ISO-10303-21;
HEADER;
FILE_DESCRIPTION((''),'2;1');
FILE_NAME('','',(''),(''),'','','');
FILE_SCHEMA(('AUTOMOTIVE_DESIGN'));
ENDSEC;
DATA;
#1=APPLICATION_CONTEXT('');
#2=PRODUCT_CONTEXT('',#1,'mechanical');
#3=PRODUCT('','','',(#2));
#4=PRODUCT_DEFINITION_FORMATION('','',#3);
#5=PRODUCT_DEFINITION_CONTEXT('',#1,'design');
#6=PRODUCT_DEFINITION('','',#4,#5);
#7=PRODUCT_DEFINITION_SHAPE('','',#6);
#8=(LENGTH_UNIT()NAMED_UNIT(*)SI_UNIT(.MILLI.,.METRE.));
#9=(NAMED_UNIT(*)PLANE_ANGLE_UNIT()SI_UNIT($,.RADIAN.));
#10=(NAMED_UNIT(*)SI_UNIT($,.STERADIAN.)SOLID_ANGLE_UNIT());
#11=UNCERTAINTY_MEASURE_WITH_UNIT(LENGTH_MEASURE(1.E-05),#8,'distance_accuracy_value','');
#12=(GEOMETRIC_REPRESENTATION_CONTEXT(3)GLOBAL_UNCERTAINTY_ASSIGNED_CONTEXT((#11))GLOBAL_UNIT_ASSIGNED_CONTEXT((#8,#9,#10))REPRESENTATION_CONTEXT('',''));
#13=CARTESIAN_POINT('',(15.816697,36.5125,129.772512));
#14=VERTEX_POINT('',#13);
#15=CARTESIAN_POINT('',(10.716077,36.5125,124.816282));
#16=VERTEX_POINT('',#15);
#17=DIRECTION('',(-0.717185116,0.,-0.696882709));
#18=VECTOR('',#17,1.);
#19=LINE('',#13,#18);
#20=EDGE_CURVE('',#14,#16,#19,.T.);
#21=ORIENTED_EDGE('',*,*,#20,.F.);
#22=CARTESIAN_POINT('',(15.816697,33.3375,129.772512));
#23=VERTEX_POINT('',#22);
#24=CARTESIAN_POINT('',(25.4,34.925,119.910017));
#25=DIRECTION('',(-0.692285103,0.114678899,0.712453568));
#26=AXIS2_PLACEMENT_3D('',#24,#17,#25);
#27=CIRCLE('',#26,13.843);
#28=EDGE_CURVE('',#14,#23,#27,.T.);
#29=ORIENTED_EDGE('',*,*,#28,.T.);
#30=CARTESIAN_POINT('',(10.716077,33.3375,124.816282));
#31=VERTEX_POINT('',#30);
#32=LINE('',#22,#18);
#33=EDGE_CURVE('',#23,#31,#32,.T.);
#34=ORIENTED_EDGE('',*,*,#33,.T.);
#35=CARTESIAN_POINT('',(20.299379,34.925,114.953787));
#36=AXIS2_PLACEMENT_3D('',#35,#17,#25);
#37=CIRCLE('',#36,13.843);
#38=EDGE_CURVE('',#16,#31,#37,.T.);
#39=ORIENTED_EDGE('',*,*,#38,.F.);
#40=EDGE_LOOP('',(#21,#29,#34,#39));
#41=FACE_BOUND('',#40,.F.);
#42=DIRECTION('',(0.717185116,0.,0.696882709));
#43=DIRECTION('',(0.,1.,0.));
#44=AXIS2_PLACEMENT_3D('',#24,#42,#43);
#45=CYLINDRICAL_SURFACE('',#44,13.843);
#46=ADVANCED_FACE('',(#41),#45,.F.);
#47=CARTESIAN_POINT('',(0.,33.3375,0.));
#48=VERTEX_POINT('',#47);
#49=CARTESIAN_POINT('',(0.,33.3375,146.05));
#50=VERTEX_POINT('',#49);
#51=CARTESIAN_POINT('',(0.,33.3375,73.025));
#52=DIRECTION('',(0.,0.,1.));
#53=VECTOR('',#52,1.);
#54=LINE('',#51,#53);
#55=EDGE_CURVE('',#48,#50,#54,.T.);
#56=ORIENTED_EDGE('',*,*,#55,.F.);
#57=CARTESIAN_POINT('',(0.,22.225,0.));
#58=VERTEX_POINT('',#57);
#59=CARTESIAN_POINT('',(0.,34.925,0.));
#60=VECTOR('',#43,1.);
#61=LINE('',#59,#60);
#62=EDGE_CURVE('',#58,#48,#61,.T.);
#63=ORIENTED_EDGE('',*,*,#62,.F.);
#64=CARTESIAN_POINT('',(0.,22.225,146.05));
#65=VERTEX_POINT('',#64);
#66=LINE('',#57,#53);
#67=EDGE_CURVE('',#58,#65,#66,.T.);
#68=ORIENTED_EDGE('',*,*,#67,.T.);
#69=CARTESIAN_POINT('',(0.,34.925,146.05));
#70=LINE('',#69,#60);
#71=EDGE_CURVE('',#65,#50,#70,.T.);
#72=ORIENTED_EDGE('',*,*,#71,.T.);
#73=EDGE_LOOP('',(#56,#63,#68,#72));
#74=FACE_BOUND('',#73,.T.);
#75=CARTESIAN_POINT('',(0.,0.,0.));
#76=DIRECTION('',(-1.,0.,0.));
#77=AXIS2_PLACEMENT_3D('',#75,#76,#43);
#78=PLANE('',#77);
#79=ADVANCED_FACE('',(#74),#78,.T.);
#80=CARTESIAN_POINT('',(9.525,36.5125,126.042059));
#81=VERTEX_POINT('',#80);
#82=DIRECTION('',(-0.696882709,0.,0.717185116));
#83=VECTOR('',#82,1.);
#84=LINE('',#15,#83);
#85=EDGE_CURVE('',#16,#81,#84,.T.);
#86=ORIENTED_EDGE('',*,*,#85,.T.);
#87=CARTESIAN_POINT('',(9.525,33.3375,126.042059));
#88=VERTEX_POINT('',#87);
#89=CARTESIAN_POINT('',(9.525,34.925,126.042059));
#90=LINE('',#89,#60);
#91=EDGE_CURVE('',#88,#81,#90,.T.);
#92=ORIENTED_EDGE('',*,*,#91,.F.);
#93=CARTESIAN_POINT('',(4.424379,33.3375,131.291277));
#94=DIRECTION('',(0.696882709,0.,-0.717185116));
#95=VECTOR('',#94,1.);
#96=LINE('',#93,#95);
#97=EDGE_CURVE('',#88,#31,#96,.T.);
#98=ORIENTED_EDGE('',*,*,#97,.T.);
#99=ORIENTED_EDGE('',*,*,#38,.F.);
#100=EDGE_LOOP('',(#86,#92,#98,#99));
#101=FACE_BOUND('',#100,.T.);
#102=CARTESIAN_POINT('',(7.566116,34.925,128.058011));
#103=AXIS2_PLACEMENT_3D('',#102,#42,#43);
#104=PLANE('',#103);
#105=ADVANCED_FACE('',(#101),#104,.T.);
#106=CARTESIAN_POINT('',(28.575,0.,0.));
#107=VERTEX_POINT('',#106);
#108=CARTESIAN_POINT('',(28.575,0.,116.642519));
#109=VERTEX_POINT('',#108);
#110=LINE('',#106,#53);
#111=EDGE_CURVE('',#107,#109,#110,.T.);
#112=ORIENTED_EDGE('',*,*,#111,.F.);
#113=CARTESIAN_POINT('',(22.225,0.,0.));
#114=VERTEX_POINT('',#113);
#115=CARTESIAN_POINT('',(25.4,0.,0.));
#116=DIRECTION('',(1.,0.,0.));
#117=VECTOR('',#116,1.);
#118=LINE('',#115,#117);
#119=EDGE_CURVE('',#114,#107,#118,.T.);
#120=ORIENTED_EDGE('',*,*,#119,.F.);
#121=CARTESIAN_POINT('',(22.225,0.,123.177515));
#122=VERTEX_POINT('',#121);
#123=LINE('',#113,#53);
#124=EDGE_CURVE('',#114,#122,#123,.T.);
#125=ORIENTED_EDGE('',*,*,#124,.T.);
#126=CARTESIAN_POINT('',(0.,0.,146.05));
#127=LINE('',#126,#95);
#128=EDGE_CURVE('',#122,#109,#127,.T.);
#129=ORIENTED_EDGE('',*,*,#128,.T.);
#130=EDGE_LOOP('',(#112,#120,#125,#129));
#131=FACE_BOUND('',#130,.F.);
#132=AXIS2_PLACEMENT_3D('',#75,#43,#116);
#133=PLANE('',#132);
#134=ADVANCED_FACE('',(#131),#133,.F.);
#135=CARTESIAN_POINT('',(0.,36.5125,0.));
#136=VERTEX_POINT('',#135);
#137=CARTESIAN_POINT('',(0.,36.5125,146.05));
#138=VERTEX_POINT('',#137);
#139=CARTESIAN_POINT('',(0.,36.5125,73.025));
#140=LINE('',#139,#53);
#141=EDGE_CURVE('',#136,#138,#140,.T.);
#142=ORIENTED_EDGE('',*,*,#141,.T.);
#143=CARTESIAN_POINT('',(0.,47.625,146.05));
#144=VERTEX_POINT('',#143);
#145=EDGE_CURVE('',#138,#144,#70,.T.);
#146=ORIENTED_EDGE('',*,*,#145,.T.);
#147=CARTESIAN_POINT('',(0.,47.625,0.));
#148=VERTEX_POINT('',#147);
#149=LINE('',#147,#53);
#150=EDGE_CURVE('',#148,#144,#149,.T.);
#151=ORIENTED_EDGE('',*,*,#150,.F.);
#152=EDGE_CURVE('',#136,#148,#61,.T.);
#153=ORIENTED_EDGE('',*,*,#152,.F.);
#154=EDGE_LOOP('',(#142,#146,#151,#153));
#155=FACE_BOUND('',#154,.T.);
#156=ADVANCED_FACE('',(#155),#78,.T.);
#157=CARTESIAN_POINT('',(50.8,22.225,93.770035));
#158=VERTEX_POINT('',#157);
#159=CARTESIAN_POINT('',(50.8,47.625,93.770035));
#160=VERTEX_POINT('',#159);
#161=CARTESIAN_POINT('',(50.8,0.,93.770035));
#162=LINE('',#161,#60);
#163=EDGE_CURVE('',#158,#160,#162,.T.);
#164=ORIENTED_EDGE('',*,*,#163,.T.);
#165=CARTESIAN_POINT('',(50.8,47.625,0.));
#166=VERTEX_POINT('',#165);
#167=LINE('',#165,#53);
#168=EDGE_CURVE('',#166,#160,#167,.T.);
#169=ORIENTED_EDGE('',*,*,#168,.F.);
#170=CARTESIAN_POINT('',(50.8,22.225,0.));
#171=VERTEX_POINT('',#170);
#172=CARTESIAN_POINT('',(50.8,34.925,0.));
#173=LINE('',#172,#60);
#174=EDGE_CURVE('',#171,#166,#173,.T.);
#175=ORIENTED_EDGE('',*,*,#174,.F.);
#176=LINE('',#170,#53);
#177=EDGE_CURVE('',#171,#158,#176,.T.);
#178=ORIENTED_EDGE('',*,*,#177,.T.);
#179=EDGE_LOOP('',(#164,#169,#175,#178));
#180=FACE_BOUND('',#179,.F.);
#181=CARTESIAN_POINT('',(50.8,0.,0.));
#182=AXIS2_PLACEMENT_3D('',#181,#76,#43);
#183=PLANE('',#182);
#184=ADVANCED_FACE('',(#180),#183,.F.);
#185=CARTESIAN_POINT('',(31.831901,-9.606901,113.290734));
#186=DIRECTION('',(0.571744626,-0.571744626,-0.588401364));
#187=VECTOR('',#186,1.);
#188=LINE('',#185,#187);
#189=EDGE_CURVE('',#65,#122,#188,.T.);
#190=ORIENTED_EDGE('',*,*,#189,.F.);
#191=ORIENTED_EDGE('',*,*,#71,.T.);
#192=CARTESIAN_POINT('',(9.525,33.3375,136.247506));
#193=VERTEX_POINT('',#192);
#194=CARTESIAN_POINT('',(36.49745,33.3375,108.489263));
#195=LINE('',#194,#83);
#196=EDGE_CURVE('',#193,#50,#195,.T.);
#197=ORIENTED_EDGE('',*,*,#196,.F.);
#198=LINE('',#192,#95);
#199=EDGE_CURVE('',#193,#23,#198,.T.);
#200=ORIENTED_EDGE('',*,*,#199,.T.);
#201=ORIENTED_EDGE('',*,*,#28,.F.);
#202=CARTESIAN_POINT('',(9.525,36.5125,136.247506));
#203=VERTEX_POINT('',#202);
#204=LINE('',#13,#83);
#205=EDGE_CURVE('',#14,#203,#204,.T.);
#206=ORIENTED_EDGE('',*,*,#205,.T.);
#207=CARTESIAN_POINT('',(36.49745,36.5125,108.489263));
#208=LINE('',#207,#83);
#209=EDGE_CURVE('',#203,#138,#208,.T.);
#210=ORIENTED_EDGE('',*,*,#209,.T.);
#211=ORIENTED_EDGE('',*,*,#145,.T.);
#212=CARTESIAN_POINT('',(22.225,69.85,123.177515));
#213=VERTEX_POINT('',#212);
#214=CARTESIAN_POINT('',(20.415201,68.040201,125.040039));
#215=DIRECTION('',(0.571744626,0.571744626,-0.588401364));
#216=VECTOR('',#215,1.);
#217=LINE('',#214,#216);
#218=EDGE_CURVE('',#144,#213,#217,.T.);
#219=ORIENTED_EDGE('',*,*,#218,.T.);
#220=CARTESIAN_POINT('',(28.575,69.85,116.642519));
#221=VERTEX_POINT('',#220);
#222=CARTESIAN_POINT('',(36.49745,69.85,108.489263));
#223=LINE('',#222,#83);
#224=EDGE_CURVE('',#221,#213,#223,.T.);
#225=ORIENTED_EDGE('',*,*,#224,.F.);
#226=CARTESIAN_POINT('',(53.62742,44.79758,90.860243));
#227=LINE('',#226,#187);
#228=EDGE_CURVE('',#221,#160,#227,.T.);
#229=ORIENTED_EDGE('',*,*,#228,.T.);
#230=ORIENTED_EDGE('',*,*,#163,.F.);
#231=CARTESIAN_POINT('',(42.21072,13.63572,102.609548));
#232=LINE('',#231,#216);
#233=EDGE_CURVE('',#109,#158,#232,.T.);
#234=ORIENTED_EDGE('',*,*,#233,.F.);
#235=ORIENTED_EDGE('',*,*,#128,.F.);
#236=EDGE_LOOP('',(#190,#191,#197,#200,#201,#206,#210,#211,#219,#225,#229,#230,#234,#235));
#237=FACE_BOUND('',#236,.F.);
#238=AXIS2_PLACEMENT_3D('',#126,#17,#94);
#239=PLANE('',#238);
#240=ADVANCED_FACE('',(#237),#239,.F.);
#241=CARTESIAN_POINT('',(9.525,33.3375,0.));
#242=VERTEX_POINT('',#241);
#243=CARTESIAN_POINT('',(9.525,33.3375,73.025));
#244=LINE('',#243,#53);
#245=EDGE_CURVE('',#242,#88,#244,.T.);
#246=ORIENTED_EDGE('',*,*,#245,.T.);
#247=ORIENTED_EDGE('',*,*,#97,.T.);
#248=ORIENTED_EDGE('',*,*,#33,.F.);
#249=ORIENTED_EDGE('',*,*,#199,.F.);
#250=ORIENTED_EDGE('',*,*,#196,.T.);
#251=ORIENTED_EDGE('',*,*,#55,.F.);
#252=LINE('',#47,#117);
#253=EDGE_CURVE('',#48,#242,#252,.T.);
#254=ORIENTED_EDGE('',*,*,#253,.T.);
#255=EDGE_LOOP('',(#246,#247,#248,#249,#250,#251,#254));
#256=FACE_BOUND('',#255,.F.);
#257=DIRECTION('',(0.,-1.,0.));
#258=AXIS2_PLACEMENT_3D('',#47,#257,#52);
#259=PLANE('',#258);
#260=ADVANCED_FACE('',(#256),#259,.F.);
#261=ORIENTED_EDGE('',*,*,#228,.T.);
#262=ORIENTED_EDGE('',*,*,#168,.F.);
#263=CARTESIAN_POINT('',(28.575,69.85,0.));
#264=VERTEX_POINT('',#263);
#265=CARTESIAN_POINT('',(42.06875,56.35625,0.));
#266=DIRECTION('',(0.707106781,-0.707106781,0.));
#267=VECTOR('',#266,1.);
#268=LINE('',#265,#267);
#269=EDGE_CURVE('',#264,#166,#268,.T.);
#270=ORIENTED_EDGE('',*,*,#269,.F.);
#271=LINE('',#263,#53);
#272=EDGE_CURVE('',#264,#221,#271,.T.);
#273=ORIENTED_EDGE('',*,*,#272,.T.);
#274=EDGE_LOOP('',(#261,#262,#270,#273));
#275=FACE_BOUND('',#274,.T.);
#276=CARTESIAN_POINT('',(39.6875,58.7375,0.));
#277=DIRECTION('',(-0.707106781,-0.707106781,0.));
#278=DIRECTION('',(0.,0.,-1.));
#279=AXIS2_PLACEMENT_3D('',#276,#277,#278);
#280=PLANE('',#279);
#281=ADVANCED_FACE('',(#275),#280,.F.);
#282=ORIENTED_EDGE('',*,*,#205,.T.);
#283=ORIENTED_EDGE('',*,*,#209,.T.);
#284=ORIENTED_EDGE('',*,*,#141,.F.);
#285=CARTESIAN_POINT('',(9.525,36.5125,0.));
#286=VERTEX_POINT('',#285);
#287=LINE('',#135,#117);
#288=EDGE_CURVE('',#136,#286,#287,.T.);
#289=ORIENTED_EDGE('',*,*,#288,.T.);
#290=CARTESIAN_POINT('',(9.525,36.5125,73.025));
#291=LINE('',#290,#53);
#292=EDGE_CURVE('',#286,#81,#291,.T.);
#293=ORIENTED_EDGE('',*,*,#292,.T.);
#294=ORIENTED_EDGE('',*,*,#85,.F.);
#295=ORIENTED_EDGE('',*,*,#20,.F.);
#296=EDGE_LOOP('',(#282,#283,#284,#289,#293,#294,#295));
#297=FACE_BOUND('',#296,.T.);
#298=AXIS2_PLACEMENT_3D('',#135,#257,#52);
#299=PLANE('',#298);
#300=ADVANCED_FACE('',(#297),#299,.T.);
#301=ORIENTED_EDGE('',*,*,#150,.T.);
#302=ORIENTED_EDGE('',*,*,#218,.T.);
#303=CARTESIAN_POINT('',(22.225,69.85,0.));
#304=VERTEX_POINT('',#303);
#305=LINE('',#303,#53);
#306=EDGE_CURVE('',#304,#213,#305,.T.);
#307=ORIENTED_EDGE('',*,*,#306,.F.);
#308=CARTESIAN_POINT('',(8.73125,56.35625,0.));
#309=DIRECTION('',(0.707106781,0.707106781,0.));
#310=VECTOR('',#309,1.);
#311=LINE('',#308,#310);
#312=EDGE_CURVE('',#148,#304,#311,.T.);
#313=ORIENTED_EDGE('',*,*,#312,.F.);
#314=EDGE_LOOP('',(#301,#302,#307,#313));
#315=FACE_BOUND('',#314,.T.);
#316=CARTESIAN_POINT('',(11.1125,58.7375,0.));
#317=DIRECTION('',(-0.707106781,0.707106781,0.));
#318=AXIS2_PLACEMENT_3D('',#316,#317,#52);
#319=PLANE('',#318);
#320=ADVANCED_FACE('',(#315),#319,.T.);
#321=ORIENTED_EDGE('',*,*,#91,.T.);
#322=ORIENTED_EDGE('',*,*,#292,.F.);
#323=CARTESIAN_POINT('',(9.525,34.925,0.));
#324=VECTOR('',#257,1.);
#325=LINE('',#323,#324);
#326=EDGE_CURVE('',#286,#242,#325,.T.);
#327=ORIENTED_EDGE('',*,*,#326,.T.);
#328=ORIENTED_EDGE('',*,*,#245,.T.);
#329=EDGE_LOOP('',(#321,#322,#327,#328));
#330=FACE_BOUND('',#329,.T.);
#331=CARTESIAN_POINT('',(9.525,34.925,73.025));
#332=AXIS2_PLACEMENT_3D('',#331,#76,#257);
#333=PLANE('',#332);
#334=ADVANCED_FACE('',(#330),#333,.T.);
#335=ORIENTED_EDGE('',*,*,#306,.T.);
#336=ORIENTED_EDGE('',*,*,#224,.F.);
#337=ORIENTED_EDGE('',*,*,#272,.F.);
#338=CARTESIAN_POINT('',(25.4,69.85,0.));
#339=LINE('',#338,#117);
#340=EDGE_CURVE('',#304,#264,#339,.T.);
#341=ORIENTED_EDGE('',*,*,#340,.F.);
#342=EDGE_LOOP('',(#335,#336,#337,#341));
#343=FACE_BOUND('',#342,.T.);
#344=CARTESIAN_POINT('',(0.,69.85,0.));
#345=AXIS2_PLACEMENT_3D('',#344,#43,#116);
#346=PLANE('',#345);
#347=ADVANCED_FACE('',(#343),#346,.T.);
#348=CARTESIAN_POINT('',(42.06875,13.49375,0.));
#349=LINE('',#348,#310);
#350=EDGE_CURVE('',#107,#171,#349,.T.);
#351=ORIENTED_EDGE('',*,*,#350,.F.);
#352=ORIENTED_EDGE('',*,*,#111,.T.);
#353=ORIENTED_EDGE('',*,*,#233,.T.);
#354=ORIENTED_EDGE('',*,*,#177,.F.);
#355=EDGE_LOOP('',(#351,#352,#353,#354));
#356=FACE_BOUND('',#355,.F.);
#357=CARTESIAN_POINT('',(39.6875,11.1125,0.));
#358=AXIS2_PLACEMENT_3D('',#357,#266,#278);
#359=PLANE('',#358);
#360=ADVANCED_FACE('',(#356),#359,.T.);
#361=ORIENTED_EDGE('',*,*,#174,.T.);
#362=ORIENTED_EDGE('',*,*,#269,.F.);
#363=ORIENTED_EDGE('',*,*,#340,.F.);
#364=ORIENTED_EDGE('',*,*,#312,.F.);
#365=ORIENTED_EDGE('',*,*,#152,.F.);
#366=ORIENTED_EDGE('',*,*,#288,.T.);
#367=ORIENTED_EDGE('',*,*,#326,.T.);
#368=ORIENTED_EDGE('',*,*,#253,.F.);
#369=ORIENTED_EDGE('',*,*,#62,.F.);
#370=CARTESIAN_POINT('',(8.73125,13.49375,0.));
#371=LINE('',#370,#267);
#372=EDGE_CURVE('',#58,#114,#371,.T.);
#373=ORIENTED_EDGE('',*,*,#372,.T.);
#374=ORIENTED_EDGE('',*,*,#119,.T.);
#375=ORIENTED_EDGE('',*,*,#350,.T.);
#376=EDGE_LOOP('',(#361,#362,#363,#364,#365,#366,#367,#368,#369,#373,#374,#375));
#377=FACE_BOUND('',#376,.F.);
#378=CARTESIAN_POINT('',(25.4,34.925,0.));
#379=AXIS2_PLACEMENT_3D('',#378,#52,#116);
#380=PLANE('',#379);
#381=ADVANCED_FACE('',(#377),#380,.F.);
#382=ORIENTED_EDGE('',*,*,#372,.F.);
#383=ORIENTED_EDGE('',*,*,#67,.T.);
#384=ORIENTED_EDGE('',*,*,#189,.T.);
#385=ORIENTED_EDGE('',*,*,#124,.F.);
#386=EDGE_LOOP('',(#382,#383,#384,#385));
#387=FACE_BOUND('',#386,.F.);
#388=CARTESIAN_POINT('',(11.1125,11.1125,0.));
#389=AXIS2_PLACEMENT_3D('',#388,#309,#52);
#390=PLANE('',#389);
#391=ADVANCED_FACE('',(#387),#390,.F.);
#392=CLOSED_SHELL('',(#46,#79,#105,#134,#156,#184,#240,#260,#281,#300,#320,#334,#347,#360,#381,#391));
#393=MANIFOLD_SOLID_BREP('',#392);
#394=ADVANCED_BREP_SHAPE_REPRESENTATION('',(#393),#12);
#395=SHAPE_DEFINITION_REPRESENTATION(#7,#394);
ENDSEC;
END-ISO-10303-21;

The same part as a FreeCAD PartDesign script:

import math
import FreeCAD as App
import Part
import Sketcher
from FreeCAD import Vector
Q = App.Units.Quantity


def edges_at(feature, points):
    """Names of the edges that pass closest to the given points."""
    edges = feature.Shape.Edges
    near = lambda p: min(range(len(edges)), key=lambda i: edges[i].distToShape(Part.Vertex(*p))[0])
    return sorted({f"Edge{near(p) + 1}" for p in points})


def add_polygon(sketch, points):
    """Adds a closed chain of lines whose ends are joined by coincident constraints."""
    first, n = sketch.GeometryCount, len(points)
    for a, b in zip(points, points[1:] + points[:1]):
        sketch.addGeometry(Part.LineSegment(App.Vector(*a, 0), App.Vector(*b, 0)), False)
    for i in range(n):
        sketch.addConstraint(Sketcher.Constraint("Coincident", first + i, 2, first + (i + 1) % n, 1))

doc = App.newDocument("Part")
body = doc.addObject("PartDesign::Body", "Body")

# Sketch on XY plane
sketch1 = body.newObject("Sketcher::SketchObject", "Sketch")
sketch1.AttachmentSupport = (doc.getObject("XY_Plane"), [""])
sketch1.MapMode = "FlatFace"
add_polygon(sketch1, [(0, 70), (0, 0), (51, 0), (51, 70)])  # lines 0-3
sketch1.addConstraint([
    Sketcher.Constraint("Vertical", 0),
    Sketcher.Constraint("Horizontal", 1),
    Sketcher.Constraint("Vertical", 2),
    Sketcher.Constraint("Horizontal", 3),
    Sketcher.Constraint("Coincident", 0, 2, -1, 1),
    Sketcher.Constraint("DistanceX", 1, 1, 1, 2, Q("2 in")),
    Sketcher.Constraint("DistanceY", 0, 2, 0, 1, Q("2.75 in")),
])
pad1 = body.newObject("PartDesign::Pad", "Pad")
pad1.Profile = sketch1
pad1.Length = Q("5.75 in")

# Sketch on XZ plane
sketch2 = body.newObject("Sketcher::SketchObject", "Sketch001")
sketch2.AttachmentSupport = (doc.getObject("XZ_Plane"), [""])
sketch2.MapMode = "FlatFace"
add_polygon(sketch2, [(51, 146), (0, 146), (51, 94)])  # lines 0-2
sketch2.addConstraint([
    Sketcher.Constraint("Horizontal", 0),
    Sketcher.Constraint("Vertical", 2),
    Sketcher.Constraint("PointOnObject", 0, 2, -2),
    Sketcher.Constraint("DistanceX", 0, 2, 0, 1, Q("2 in")),
    Sketcher.Constraint("DistanceY", -1, 1, 0, 2, Q("5.75 in")),
    Sketcher.Constraint("DistanceY", 2, 1, 2, 2, Q("52.279965 mm")),
])
pocket1 = body.newObject("PartDesign::Pocket", "Pocket")
pocket1.Profile = sketch2
pocket1.Type = "ThroughAll"

# Sketch on an angled plane
sketch3 = body.newObject("Sketcher::SketchObject", "Sketch002")
sketch3.Placement = App.Placement(Vector(72.9949, 0, 70.928527), App.Rotation(Vector(0, 1, 0), Vector(-0.696882709, 0, 0.717185116), Vector(0.717185116, 0, 0.696882709), "ZXY"))
sketch3.addGeometry(Part.Circle(Vector(35, 68, 0), Vector(0, 0, 1), 14), False)
sketch3.addConstraint([
    Sketcher.Constraint("Diameter", 0, Q("1.09 in")),
    Sketcher.Constraint("DistanceX", -1, 1, 0, 3, Q("1.375 in")),
    Sketcher.Constraint("DistanceY", -1, 1, 0, 3, Q("68.296859 mm")),
])
pocket2 = body.newObject("PartDesign::Pocket", "Pocket001")
pocket2.Profile = sketch3
pocket2.Length = Q("0.28 in")
doc.recompute()

chamfer = body.newObject("PartDesign::Chamfer", "Chamfer")
chamfer.Base = (pocket2, edges_at(pocket2, [
    (50.8, 0, 46.885),
    (50.8, 69.85, 46.885),
    (0, 69.85, 73.025),
    (0, 0, 73.025),
]))
chamfer.Size = Q("0.875 in")

# Sketch on YZ plane
sketch4 = body.newObject("Sketcher::SketchObject", "Sketch003")
sketch4.AttachmentSupport = (doc.getObject("YZ_Plane"), [""])
sketch4.MapMode = "FlatFace"
add_polygon(sketch4, [(36.5, 146.1), (36.5, 0), (33.3, 0), (33.3, 146.1)])  # lines 0-3
sketch4.addConstraint([
    Sketcher.Constraint("Vertical", 0),
    Sketcher.Constraint("Horizontal", 1),
    Sketcher.Constraint("Vertical", 2),
    Sketcher.Constraint("Horizontal", 3),
    Sketcher.Constraint("PointOnObject", 0, 2, -1),
    Sketcher.Constraint("DistanceY", 0, 2, 0, 1, Q("5.75 in")),
    Sketcher.Constraint("DistanceX", 1, 2, 1, 1, Q("0.125 in")),
    Sketcher.Constraint("DistanceX", -1, 1, 0, 2, Q("1.4375 in")),
])
pocket3 = body.newObject("PartDesign::Pocket", "Pocket002")
pocket3.Profile = sketch4
pocket3.Length = Q("0.375 in")
pocket3.Reversed = True

# Sketch on an angled plane
sketch5 = body.newObject("Sketcher::SketchObject", "Sketch004")
sketch5.Placement = App.Placement(Vector(72.9949, 0, 70.928527), App.Rotation(Vector(0, 1, 0), Vector(-0.696882709, 0, 0.717185116), Vector(0.717185116, 0, 0.696882709), "ZXY"))
sketch5.addGeometry([
    Part.LineSegment(Vector(36.5, 91.1, 0), Vector(33.3, 91.1, 0)),
    Part.LineSegment(Vector(33.3, 91.1, 0), Vector(33.3, 82, 0)),
    Part.ArcOfCircle(Part.Circle(Vector(34.9, 68.3, 0), Vector(0, 0, 1), 13.8), math.radians(83.41), math.radians(96.59)),
    Part.LineSegment(Vector(36.5, 82, 0), Vector(36.5, 91.1, 0)),
], False)
sketch5.addConstraint([
    Sketcher.Constraint("Coincident", 0, 2, 1, 1),
    Sketcher.Constraint("Coincident", 1, 2, 2, 2),
    Sketcher.Constraint("Coincident", 2, 1, 3, 1),
    Sketcher.Constraint("Coincident", 3, 2, 0, 1),
    Sketcher.Constraint("Horizontal", 0),
    Sketcher.Constraint("Vertical", 1),
    Sketcher.Constraint("Vertical", 3),
    Sketcher.Constraint("Horizontal", 1, 2, 2, 1),
    Sketcher.Constraint("Radius", 2, Q("0.545 in")),
    Sketcher.Constraint("DistanceX", 0, 2, 0, 1, Q("0.125 in")),
    Sketcher.Constraint("DistanceX", -1, 1, 2, 3, Q("1.375 in")),
    Sketcher.Constraint("DistanceY", 1, 2, 1, 1, Q("9.028345 mm")),
    Sketcher.Constraint("DistanceY", -1, 1, 2, 3, Q("68.296859 mm")),
])
pocket4 = body.newObject("PartDesign::Pocket", "Pocket003")
pocket4.Profile = sketch5
pocket4.Length = Q("0.28 in")

doc.recompute()
